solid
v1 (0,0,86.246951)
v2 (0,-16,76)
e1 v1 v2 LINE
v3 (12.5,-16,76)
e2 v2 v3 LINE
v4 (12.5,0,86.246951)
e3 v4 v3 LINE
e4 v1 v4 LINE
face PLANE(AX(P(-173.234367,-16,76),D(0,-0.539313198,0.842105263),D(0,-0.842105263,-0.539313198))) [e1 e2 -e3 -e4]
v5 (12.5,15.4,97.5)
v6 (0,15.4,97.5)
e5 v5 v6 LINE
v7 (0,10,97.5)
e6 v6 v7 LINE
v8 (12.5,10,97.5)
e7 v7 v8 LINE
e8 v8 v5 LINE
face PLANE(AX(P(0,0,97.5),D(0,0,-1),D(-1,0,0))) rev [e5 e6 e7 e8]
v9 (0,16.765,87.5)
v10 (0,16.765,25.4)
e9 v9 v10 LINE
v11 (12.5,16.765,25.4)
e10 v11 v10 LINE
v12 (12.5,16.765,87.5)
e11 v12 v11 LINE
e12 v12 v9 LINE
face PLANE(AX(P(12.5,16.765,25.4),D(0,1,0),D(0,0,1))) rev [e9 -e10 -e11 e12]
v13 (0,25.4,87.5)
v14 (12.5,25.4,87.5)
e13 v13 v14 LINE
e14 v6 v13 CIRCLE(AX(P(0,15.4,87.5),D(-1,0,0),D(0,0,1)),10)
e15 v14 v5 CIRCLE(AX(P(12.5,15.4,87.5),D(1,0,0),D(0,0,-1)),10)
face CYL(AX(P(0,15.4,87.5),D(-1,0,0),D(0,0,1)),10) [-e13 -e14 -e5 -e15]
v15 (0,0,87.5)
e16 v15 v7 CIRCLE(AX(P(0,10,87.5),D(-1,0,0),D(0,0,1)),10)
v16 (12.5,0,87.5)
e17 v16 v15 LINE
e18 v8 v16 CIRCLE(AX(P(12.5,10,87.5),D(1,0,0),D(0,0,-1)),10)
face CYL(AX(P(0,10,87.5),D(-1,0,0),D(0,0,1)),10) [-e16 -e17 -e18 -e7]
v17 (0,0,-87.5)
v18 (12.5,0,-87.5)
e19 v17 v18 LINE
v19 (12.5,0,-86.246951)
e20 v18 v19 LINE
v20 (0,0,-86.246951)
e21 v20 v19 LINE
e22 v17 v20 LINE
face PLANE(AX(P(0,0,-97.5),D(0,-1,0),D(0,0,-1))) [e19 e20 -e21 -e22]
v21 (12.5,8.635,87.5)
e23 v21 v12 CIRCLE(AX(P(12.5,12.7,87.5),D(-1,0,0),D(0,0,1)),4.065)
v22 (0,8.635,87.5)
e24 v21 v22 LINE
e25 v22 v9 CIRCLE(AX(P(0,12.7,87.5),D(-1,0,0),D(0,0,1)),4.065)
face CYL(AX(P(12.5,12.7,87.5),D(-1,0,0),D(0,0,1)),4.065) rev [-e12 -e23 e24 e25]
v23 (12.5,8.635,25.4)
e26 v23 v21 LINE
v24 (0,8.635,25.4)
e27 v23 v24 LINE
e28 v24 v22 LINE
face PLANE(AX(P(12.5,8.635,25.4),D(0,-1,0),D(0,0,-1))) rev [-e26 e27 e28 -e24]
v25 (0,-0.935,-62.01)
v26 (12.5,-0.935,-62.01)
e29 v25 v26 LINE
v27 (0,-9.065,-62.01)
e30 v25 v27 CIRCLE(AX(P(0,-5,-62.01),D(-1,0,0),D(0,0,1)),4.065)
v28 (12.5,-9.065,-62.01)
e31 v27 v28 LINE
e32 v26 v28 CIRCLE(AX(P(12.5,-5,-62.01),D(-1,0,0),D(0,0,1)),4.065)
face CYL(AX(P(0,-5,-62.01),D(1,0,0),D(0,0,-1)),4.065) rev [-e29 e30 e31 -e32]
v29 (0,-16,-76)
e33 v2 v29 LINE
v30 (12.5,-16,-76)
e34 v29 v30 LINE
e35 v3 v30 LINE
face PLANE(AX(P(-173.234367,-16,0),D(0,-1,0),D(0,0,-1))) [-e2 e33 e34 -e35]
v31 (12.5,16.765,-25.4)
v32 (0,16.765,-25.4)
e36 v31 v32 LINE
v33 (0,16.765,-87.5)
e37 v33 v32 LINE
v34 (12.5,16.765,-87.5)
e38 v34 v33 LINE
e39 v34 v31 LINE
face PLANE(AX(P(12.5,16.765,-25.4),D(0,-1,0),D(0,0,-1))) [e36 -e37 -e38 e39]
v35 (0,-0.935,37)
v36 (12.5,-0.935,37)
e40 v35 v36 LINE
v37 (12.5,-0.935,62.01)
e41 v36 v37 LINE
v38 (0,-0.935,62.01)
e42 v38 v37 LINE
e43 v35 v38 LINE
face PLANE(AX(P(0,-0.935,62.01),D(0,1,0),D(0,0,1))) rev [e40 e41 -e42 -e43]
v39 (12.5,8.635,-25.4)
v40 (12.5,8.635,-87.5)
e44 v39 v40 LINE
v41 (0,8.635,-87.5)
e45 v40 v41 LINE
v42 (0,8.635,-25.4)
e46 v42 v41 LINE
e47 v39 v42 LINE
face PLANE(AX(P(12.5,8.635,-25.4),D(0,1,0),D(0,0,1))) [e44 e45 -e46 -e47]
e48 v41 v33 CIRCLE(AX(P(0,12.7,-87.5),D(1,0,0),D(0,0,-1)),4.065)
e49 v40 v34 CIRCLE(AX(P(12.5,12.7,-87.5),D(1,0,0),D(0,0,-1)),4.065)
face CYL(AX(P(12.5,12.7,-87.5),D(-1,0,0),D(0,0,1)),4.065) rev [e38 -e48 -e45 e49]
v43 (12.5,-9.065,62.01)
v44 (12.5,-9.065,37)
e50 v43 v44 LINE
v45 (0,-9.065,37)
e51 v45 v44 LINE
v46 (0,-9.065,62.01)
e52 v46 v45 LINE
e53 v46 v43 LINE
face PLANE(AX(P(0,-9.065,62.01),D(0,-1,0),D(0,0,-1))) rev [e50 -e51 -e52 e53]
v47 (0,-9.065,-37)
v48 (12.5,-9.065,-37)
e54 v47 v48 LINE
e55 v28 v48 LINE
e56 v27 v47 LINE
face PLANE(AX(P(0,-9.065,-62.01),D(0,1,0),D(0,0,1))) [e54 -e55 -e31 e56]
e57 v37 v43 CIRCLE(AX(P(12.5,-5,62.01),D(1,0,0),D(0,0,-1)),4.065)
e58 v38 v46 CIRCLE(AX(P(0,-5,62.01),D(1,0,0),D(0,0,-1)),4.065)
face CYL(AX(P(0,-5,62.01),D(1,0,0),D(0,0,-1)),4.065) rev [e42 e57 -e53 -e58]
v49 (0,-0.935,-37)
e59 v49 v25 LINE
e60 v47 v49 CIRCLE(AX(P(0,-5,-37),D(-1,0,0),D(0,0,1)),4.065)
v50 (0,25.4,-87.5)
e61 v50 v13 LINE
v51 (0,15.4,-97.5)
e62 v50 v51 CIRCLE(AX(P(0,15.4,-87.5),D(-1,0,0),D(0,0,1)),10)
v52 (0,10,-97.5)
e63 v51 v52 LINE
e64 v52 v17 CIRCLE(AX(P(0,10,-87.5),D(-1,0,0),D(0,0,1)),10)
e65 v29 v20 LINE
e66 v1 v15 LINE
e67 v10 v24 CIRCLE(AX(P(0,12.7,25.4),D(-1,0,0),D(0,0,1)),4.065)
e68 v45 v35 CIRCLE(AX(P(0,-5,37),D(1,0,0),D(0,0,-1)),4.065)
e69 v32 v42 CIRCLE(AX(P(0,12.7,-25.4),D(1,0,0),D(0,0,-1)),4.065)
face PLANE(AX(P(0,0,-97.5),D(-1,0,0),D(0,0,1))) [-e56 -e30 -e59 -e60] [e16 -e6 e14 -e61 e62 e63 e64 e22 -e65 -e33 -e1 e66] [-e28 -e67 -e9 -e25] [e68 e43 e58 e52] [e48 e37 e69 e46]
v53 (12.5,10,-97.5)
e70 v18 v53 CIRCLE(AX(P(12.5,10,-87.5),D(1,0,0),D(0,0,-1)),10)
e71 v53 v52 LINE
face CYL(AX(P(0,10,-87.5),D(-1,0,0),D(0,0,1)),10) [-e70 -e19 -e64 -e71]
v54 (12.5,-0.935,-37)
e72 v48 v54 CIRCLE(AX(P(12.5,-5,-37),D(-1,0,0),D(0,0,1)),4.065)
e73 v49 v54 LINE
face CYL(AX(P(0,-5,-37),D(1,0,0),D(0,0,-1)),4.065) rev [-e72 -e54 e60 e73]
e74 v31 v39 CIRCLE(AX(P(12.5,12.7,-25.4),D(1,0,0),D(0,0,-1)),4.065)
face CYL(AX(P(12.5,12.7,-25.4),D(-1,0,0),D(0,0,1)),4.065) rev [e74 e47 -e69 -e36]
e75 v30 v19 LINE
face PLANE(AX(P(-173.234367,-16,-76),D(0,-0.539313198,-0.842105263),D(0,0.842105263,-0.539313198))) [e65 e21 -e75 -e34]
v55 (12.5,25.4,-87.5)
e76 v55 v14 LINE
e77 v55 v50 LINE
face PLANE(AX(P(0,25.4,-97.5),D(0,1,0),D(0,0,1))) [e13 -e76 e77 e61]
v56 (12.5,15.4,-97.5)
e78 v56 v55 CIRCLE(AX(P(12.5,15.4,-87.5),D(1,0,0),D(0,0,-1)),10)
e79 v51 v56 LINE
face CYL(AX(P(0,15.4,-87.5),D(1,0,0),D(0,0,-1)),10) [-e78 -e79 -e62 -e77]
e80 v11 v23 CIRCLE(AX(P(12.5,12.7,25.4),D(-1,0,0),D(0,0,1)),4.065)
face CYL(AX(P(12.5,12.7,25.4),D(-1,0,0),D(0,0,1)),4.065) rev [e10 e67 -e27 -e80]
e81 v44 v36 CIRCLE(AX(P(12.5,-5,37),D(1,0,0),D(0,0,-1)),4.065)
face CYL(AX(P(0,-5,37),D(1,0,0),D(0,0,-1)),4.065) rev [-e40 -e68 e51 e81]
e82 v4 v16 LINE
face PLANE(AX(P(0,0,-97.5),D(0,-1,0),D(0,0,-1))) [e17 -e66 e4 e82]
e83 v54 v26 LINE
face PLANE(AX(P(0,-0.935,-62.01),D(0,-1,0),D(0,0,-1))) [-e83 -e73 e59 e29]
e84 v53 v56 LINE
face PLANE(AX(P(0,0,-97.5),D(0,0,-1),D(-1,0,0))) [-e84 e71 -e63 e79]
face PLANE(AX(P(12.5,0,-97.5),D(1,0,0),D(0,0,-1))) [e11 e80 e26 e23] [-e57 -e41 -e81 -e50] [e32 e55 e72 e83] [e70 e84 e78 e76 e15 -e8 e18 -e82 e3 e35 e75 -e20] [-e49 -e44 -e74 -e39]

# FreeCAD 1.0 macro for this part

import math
import FreeCAD as App
import Part
import Sketcher
from FreeCAD import Vector


def edges_at(feature, points):
    """Names of the edges that pass closest to the given points."""
    edges = feature.Shape.Edges
    near = lambda p: min(range(len(edges)), key=lambda i: edges[i].distToShape(Part.Vertex(*p))[0])
    return sorted({f"Edge{near(p) + 1}" for p in points})

doc = App.newDocument("Part")
body = doc.addObject("PartDesign::Body", "Body")

# Sketch on XY plane
sketch1 = body.newObject("Sketcher::SketchObject", "Sketch")
sketch1.AttachmentSupport = (doc.getObject("XY_Plane"), [""])
sketch1.MapMode = "FlatFace"
sketch1.addGeometry([
    Part.LineSegment(Vector(0, 25.4, 0), Vector(0, 0, 0)),
    Part.LineSegment(Vector(0, 0, 0), Vector(12.5, 0, 0)),
    Part.LineSegment(Vector(12.5, 0, 0), Vector(12.5, 25.4, 0)),
    Part.LineSegment(Vector(12.5, 25.4, 0), Vector(0, 25.4, 0)),
], False)
sketch1.addConstraint([
    Sketcher.Constraint("Coincident", 0, 2, 1, 1),
    Sketcher.Constraint("Coincident", 1, 2, 2, 1),
    Sketcher.Constraint("Coincident", 2, 2, 3, 1),
    Sketcher.Constraint("Coincident", 3, 2, 0, 1),
    Sketcher.Constraint("Vertical", 0),
    Sketcher.Constraint("Horizontal", 1),
    Sketcher.Constraint("Vertical", 2),
    Sketcher.Constraint("Horizontal", 3),
    Sketcher.Constraint("Coincident", 0, 2, -1, 1),
    Sketcher.Constraint("DistanceX", 1, 1, 1, 2, 12.5),
    Sketcher.Constraint("DistanceY", 0, 2, 0, 1, 25.4),
])
pad1 = body.newObject("PartDesign::Pad", "Pad")
pad1.Profile = sketch1
pad1.Type = "TwoLengths"
pad1.Length = 97.5
pad1.Length2 = 97.5

# Sketch on YZ plane
sketch2 = body.newObject("Sketcher::SketchObject", "Sketch001")
sketch2.AttachmentSupport = (doc.getObject("YZ_Plane"), [""])
sketch2.MapMode = "FlatFace"
sketch2.addGeometry([
    Part.LineSegment(Vector(16.765, 87.5, 0), Vector(16.765, 25.4, 0)),
    Part.ArcOfCircle(Part.Circle(Vector(12.7, 25.4, 0), Vector(0, 0, 1), 4.065), math.radians(180), math.radians(360)),
    Part.LineSegment(Vector(8.635, 25.4, 0), Vector(8.635, 87.5, 0)),
    Part.ArcOfCircle(Part.Circle(Vector(12.7, 87.5, 0), Vector(0, 0, 1), 4.065), math.radians(0), math.radians(180)),
], False)
sketch2.addConstraint([
    Sketcher.Constraint("Tangent", 0, 2, 1, 2),
    Sketcher.Constraint("Tangent", 1, 1, 2, 1),
    Sketcher.Constraint("Tangent", 2, 2, 3, 2),
    Sketcher.Constraint("Tangent", 3, 1, 0, 1),
    Sketcher.Constraint("Vertical", 0),
    Sketcher.Constraint("Vertical", 2),
    Sketcher.Constraint("DistanceY", 0, 2, 0, 1, 62.1),
    Sketcher.Constraint("Radius", 1, 4.065),
    Sketcher.Constraint("DistanceX", -1, 1, 1, 3, 12.7),
    Sketcher.Constraint("DistanceY", -1, 1, 1, 3, 25.4),
])
pocket1 = body.newObject("PartDesign::Pocket", "Pocket")
pocket1.Profile = sketch2
pocket1.Type = "ThroughAll"
pocket1.Reversed = True
doc.recompute()

mirrored = body.newObject("PartDesign::Mirrored", "Mirrored")
mirrored.Originals = [pocket1]
mirrored.MirrorPlane = (doc.getObject("XY_Plane"), [""])
body.Tip = mirrored
doc.recompute()

fillet = body.newObject("PartDesign::Fillet", "Fillet")
fillet.Base = (mirrored, edges_at(mirrored, [(6.25, 0, -97.5)]))
fillet.Radius = 10
doc.recompute()

fillet2 = body.newObject("PartDesign::Fillet", "Fillet001")
fillet2.Base = (fillet, edges_at(fillet, [(6.25, 25.4, -97.5)]))
fillet2.Radius = 10
doc.recompute()

fillet3 = body.newObject("PartDesign::Fillet", "Fillet002")
fillet3.Base = (fillet2, edges_at(fillet2, [(6.25, 0, 97.5)]))
fillet3.Radius = 10
doc.recompute()

fillet4 = body.newObject("PartDesign::Fillet", "Fillet003")
fillet4.Base = (fillet3, edges_at(fillet3, [(6.25, 25.4, 97.5)]))
fillet4.Radius = 10

# Sketch on YZ plane
sketch3 = body.newObject("Sketcher::SketchObject", "Sketch002")
sketch3.AttachmentSupport = (doc.getObject("YZ_Plane"), [""])
sketch3.MapMode = "FlatFace"
sketch3.AttachmentOffset = App.Placement(Vector(0, 0, 12.5), App.Rotation())
sketch3.addGeometry([
    Part.LineSegment(Vector(0, 86.246951, 0), Vector(-16, 76, 0)),
    Part.LineSegment(Vector(-16, 76, 0), Vector(-16, -76, 0)),
    Part.LineSegment(Vector(-16, -76, 0), Vector(0, -86.246951, 0)),
    Part.LineSegment(Vector(0, -86.246951, 0), Vector(0, 86.246951, 0)),
], False)
sketch3.addConstraint([
    Sketcher.Constraint("Coincident", 0, 2, 1, 1),
    Sketcher.Constraint("Coincident", 1, 2, 2, 1),
    Sketcher.Constraint("Coincident", 2, 2, 3, 1),
    Sketcher.Constraint("Coincident", 3, 2, 0, 1),
    Sketcher.Constraint("Vertical", 1),
    Sketcher.Constraint("Vertical", 3),
    Sketcher.Constraint("Symmetric", 2, 2, 3, 2, -1, 1),
    Sketcher.Constraint("Equal", 0, 2),
    Sketcher.Constraint("DistanceY", 1, 2, 1, 1, 152.0),
    Sketcher.Constraint("Distance", 0, 19.0),
    Sketcher.Constraint("DistanceX", 0, 2, -1, 1, 16.0),
])
pad2 = body.newObject("PartDesign::Pad", "Pad001")
pad2.Profile = sketch3
pad2.Length = 12.5
pad2.Reversed = True

# Sketch on YZ plane
sketch4 = body.newObject("Sketcher::SketchObject", "Sketch003")
sketch4.AttachmentSupport = (doc.getObject("YZ_Plane"), [""])
sketch4.MapMode = "FlatFace"
sketch4.AttachmentOffset = App.Placement(Vector(0, 0, 12.5), App.Rotation())
sketch4.addGeometry([
    Part.LineSegment(Vector(-0.935, 37, 0), Vector(-0.935, 62.01, 0)),
    Part.ArcOfCircle(Part.Circle(Vector(-5, 62.01, 0), Vector(0, 0, 1), 4.065), math.radians(0), math.radians(180)),
    Part.LineSegment(Vector(-9.065, 62.01, 0), Vector(-9.065, 37, 0)),
    Part.ArcOfCircle(Part.Circle(Vector(-5, 37, 0), Vector(0, 0, 1), 4.065), math.radians(180), math.radians(360)),
], False)
sketch4.addConstraint([
    Sketcher.Constraint("Tangent", 0, 2, 1, 1),
    Sketcher.Constraint("Tangent", 1, 2, 2, 1),
    Sketcher.Constraint("Tangent", 2, 2, 3, 1),
    Sketcher.Constraint("Tangent", 3, 2, 0, 1),
    Sketcher.Constraint("Vertical", 0),
    Sketcher.Constraint("Vertical", 2),
    Sketcher.Constraint("DistanceX", 1, 3, -1, 1, 5.0),
    Sketcher.Constraint("DistanceY", -1, 1, 3, 3, 37.0),
    Sketcher.Constraint("Radius", 1, 4.065),
    Sketcher.Constraint("DistanceY", 0, 1, 0, 2, 25.01),
])
pocket2 = body.newObject("PartDesign::Pocket", "Pocket001")
pocket2.Profile = sketch4
pocket2.Type = "ThroughAll"
doc.recompute()

mirrored2 = body.newObject("PartDesign::Mirrored", "Mirrored001")
mirrored2.Originals = [pocket2]
mirrored2.MirrorPlane = (doc.getObject("XY_Plane"), [""])
body.Tip = mirrored2

doc.recompute()
